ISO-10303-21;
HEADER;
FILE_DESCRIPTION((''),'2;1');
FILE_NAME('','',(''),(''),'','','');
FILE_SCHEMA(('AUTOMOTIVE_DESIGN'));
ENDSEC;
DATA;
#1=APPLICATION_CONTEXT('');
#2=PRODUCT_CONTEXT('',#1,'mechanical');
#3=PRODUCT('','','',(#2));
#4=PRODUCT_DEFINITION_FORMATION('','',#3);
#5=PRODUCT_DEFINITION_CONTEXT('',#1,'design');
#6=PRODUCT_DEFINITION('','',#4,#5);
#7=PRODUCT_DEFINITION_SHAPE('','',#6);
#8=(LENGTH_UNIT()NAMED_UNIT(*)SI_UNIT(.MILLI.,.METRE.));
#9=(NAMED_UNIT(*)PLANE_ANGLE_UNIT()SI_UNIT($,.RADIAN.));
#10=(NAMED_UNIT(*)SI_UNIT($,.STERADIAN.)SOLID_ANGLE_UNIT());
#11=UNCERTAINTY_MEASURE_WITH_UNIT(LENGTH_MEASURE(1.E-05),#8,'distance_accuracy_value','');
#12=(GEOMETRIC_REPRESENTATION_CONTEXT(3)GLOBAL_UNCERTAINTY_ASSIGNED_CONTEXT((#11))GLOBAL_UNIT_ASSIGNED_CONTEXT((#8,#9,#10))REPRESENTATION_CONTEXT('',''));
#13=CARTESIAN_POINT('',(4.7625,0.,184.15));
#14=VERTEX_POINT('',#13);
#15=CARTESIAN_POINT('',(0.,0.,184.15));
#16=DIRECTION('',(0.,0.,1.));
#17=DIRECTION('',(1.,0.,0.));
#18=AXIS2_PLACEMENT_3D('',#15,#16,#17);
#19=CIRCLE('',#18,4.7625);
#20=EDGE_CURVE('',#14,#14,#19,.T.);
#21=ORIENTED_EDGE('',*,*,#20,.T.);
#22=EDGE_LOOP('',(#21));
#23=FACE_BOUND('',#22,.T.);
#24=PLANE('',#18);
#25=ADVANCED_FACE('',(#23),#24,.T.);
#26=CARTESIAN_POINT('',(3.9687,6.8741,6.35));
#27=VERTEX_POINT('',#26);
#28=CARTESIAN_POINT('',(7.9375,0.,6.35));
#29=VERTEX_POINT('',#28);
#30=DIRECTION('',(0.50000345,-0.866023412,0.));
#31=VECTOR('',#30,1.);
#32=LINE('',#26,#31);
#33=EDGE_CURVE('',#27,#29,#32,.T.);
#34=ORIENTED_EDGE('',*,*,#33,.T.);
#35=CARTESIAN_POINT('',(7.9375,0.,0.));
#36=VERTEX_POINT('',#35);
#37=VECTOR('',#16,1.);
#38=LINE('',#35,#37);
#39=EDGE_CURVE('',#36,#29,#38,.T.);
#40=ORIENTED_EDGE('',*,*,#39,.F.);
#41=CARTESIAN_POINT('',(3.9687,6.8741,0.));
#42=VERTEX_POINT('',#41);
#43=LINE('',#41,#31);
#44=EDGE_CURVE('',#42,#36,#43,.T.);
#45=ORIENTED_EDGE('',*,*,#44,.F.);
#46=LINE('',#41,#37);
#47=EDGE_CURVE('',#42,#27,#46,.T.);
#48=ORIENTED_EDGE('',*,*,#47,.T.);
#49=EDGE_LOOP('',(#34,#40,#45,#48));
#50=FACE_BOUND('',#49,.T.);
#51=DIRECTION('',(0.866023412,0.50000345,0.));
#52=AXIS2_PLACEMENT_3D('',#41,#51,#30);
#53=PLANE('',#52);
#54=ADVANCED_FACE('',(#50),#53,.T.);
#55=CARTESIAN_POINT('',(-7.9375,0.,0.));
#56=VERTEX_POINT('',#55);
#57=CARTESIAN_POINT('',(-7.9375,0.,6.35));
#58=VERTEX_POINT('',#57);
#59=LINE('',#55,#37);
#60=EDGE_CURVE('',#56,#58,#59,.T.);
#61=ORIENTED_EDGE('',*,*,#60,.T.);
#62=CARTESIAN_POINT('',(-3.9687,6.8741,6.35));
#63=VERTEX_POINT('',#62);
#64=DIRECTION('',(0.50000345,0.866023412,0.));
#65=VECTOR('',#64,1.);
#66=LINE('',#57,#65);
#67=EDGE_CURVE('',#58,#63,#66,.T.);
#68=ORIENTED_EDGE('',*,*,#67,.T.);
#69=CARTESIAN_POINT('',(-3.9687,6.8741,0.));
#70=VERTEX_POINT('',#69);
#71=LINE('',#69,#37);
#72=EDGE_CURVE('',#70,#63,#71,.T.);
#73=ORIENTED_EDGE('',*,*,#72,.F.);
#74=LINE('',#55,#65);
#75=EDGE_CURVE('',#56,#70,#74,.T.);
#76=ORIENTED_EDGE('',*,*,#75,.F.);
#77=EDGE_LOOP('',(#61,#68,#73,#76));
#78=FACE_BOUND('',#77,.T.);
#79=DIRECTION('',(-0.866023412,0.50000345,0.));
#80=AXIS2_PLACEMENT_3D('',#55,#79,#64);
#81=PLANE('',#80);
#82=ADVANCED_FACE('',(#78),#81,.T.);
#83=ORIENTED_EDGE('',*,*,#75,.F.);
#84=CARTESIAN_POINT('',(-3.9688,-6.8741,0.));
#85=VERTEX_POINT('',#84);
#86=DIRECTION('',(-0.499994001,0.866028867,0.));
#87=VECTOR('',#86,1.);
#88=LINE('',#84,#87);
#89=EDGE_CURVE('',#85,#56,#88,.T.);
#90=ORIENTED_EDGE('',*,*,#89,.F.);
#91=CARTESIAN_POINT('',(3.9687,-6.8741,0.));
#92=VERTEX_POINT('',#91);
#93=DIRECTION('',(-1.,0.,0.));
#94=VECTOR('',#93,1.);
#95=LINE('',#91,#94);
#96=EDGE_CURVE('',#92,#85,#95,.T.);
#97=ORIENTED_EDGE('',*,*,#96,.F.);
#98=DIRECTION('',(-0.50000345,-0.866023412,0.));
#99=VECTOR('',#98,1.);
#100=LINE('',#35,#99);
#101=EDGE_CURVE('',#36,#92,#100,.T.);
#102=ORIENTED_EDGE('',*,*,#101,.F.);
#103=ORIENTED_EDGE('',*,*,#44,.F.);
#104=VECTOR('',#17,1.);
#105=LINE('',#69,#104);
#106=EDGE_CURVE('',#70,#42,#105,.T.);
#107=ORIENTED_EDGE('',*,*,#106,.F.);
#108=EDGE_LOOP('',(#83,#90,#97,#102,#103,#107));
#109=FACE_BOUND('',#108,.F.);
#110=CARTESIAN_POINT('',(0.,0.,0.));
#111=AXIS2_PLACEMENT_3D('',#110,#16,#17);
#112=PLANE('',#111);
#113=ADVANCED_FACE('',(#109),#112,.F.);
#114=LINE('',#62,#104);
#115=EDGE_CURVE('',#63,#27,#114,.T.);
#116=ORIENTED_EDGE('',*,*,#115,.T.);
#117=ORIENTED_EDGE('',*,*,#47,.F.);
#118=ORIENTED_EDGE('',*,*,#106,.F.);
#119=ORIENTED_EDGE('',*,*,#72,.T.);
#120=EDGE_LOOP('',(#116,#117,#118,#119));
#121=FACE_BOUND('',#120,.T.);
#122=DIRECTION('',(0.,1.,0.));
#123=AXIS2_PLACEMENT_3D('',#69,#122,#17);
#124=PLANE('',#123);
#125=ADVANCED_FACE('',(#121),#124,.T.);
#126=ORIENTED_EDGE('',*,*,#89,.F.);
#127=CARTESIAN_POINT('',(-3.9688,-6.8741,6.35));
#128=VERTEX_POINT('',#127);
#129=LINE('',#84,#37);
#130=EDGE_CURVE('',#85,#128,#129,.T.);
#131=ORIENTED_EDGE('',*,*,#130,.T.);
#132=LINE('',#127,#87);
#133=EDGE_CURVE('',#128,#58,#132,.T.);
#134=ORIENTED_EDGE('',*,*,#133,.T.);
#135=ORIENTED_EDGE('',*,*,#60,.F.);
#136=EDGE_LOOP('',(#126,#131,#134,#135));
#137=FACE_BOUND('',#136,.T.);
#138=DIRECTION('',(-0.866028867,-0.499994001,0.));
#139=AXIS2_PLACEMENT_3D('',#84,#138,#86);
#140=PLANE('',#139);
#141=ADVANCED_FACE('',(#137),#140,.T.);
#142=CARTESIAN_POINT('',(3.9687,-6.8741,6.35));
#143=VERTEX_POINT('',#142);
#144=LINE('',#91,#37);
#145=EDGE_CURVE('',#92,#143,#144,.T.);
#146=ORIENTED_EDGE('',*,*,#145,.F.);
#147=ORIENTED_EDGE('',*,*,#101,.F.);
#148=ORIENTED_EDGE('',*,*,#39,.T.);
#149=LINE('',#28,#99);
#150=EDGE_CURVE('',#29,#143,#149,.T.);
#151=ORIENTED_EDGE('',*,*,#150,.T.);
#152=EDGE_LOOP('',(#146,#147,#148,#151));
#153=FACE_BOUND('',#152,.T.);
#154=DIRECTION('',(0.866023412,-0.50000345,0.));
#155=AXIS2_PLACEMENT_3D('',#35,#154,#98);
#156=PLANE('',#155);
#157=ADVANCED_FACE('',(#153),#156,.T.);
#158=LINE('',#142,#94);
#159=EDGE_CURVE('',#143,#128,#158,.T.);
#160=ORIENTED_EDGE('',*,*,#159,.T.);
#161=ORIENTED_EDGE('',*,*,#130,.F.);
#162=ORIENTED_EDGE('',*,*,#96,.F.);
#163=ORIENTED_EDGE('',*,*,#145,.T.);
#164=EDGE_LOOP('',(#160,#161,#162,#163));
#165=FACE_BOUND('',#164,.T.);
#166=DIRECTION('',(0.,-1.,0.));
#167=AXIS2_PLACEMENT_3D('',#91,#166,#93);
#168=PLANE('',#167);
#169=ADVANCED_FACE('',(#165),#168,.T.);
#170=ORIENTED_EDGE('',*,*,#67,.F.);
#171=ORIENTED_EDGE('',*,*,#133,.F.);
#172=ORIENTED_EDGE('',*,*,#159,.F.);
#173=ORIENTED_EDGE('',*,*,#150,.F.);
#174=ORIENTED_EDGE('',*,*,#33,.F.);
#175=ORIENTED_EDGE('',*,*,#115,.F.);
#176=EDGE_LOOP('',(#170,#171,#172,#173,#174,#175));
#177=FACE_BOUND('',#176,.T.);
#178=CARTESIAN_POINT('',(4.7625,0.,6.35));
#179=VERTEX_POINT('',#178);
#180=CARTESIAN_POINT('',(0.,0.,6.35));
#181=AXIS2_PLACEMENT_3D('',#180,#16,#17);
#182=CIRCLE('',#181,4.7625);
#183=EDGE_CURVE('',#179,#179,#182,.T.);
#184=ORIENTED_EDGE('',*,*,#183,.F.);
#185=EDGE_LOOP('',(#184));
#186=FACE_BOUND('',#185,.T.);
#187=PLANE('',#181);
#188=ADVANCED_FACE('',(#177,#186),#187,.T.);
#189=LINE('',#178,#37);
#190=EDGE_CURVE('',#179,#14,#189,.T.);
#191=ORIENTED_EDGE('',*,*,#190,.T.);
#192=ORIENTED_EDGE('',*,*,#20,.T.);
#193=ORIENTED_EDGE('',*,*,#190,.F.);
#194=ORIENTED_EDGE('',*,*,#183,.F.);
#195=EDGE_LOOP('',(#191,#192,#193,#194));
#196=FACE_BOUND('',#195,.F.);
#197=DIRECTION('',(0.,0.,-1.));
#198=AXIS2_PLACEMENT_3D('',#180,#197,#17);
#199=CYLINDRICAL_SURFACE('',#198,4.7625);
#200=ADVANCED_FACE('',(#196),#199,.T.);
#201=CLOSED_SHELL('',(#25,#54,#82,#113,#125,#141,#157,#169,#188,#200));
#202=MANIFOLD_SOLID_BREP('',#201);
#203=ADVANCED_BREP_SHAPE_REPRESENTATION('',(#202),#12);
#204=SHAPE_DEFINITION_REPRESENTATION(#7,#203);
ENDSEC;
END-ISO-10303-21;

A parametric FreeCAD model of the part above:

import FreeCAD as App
import Part
import Sketcher

V = App.Vector
Q = App.Units.Quantity


def add_polygon(sketch, points):
    """Adds a closed chain of lines whose ends are joined by coincident constraints."""
    first, n = sketch.GeometryCount, len(points)
    for a, b in zip(points, points[1:] + points[:1]):
        sketch.addGeometry(Part.LineSegment(App.Vector(*a, 0), App.Vector(*b, 0)), False)
    for i in range(n):
        sketch.addConstraint(Sketcher.Constraint("Coincident", first + i, 2, first + (i + 1) % n, 1))

doc = App.newDocument("Part")
body = doc.addObject("PartDesign::Body", "Body")

sketch1 = body.newObject("Sketcher::SketchObject", "Sketch")
sketch1.AttachmentSupport = (doc.getObject("XY_Plane"), [""])
sketch1.MapMode = "FlatFace"
add_polygon(sketch1, [(4, 7), (-4, 7), (-8, 0), (-4, -7), (4, -7), (8, 0)])
sketch1.addConstraint([
    Sketcher.Constraint("Horizontal", 0),
    Sketcher.Constraint("Horizontal", 3),
    Sketcher.Constraint("Symmetric", 0, 2, 3, 2, -1, 1),
    Sketcher.Constraint("Symmetric", 1, 2, 4, 2, -1, 1),
    Sketcher.Constraint("PointOnObject", 1, 2, -1),
    Sketcher.Constraint("Parallel", 2, 5),
    Sketcher.Constraint("Vertical", 0, 2, 2, 2),
    Sketcher.Constraint("Angle", 1, Q("-120.0002 deg")),
    Sketcher.Constraint("DistanceX", 1, 2, 4, 2, Q("0.625 in")),
    Sketcher.Constraint("DistanceX", 0, 2, 0, 1, Q("0.3125 in")),
])
pad1 = body.newObject("PartDesign::Pad", "Pad")
pad1.Profile = sketch1
pad1.Length = Q("0.25 in")

sketch2 = body.newObject("Sketcher::SketchObject", "Sketch001")
sketch2.AttachmentSupport = (doc.getObject("XY_Plane"), [""])
sketch2.MapMode = "FlatFace"
sketch2.AttachmentOffset = App.Placement(V(0, 0, 0.25 * 25.4), App.Rotation())
sketch2.addGeometry(Part.Circle(V(0, 0, 0), V(0, 0, 1), 4.8), False)
sketch2.addConstraint([
    Sketcher.Constraint("Coincident", 0, 3, -1, 1),
    Sketcher.Constraint("Diameter", 0, Q("0.375 in")),
])
pad2 = body.newObject("PartDesign::Pad", "Pad001")
pad2.Profile = sketch2
pad2.Length = Q("7 in")

doc.recompute()
